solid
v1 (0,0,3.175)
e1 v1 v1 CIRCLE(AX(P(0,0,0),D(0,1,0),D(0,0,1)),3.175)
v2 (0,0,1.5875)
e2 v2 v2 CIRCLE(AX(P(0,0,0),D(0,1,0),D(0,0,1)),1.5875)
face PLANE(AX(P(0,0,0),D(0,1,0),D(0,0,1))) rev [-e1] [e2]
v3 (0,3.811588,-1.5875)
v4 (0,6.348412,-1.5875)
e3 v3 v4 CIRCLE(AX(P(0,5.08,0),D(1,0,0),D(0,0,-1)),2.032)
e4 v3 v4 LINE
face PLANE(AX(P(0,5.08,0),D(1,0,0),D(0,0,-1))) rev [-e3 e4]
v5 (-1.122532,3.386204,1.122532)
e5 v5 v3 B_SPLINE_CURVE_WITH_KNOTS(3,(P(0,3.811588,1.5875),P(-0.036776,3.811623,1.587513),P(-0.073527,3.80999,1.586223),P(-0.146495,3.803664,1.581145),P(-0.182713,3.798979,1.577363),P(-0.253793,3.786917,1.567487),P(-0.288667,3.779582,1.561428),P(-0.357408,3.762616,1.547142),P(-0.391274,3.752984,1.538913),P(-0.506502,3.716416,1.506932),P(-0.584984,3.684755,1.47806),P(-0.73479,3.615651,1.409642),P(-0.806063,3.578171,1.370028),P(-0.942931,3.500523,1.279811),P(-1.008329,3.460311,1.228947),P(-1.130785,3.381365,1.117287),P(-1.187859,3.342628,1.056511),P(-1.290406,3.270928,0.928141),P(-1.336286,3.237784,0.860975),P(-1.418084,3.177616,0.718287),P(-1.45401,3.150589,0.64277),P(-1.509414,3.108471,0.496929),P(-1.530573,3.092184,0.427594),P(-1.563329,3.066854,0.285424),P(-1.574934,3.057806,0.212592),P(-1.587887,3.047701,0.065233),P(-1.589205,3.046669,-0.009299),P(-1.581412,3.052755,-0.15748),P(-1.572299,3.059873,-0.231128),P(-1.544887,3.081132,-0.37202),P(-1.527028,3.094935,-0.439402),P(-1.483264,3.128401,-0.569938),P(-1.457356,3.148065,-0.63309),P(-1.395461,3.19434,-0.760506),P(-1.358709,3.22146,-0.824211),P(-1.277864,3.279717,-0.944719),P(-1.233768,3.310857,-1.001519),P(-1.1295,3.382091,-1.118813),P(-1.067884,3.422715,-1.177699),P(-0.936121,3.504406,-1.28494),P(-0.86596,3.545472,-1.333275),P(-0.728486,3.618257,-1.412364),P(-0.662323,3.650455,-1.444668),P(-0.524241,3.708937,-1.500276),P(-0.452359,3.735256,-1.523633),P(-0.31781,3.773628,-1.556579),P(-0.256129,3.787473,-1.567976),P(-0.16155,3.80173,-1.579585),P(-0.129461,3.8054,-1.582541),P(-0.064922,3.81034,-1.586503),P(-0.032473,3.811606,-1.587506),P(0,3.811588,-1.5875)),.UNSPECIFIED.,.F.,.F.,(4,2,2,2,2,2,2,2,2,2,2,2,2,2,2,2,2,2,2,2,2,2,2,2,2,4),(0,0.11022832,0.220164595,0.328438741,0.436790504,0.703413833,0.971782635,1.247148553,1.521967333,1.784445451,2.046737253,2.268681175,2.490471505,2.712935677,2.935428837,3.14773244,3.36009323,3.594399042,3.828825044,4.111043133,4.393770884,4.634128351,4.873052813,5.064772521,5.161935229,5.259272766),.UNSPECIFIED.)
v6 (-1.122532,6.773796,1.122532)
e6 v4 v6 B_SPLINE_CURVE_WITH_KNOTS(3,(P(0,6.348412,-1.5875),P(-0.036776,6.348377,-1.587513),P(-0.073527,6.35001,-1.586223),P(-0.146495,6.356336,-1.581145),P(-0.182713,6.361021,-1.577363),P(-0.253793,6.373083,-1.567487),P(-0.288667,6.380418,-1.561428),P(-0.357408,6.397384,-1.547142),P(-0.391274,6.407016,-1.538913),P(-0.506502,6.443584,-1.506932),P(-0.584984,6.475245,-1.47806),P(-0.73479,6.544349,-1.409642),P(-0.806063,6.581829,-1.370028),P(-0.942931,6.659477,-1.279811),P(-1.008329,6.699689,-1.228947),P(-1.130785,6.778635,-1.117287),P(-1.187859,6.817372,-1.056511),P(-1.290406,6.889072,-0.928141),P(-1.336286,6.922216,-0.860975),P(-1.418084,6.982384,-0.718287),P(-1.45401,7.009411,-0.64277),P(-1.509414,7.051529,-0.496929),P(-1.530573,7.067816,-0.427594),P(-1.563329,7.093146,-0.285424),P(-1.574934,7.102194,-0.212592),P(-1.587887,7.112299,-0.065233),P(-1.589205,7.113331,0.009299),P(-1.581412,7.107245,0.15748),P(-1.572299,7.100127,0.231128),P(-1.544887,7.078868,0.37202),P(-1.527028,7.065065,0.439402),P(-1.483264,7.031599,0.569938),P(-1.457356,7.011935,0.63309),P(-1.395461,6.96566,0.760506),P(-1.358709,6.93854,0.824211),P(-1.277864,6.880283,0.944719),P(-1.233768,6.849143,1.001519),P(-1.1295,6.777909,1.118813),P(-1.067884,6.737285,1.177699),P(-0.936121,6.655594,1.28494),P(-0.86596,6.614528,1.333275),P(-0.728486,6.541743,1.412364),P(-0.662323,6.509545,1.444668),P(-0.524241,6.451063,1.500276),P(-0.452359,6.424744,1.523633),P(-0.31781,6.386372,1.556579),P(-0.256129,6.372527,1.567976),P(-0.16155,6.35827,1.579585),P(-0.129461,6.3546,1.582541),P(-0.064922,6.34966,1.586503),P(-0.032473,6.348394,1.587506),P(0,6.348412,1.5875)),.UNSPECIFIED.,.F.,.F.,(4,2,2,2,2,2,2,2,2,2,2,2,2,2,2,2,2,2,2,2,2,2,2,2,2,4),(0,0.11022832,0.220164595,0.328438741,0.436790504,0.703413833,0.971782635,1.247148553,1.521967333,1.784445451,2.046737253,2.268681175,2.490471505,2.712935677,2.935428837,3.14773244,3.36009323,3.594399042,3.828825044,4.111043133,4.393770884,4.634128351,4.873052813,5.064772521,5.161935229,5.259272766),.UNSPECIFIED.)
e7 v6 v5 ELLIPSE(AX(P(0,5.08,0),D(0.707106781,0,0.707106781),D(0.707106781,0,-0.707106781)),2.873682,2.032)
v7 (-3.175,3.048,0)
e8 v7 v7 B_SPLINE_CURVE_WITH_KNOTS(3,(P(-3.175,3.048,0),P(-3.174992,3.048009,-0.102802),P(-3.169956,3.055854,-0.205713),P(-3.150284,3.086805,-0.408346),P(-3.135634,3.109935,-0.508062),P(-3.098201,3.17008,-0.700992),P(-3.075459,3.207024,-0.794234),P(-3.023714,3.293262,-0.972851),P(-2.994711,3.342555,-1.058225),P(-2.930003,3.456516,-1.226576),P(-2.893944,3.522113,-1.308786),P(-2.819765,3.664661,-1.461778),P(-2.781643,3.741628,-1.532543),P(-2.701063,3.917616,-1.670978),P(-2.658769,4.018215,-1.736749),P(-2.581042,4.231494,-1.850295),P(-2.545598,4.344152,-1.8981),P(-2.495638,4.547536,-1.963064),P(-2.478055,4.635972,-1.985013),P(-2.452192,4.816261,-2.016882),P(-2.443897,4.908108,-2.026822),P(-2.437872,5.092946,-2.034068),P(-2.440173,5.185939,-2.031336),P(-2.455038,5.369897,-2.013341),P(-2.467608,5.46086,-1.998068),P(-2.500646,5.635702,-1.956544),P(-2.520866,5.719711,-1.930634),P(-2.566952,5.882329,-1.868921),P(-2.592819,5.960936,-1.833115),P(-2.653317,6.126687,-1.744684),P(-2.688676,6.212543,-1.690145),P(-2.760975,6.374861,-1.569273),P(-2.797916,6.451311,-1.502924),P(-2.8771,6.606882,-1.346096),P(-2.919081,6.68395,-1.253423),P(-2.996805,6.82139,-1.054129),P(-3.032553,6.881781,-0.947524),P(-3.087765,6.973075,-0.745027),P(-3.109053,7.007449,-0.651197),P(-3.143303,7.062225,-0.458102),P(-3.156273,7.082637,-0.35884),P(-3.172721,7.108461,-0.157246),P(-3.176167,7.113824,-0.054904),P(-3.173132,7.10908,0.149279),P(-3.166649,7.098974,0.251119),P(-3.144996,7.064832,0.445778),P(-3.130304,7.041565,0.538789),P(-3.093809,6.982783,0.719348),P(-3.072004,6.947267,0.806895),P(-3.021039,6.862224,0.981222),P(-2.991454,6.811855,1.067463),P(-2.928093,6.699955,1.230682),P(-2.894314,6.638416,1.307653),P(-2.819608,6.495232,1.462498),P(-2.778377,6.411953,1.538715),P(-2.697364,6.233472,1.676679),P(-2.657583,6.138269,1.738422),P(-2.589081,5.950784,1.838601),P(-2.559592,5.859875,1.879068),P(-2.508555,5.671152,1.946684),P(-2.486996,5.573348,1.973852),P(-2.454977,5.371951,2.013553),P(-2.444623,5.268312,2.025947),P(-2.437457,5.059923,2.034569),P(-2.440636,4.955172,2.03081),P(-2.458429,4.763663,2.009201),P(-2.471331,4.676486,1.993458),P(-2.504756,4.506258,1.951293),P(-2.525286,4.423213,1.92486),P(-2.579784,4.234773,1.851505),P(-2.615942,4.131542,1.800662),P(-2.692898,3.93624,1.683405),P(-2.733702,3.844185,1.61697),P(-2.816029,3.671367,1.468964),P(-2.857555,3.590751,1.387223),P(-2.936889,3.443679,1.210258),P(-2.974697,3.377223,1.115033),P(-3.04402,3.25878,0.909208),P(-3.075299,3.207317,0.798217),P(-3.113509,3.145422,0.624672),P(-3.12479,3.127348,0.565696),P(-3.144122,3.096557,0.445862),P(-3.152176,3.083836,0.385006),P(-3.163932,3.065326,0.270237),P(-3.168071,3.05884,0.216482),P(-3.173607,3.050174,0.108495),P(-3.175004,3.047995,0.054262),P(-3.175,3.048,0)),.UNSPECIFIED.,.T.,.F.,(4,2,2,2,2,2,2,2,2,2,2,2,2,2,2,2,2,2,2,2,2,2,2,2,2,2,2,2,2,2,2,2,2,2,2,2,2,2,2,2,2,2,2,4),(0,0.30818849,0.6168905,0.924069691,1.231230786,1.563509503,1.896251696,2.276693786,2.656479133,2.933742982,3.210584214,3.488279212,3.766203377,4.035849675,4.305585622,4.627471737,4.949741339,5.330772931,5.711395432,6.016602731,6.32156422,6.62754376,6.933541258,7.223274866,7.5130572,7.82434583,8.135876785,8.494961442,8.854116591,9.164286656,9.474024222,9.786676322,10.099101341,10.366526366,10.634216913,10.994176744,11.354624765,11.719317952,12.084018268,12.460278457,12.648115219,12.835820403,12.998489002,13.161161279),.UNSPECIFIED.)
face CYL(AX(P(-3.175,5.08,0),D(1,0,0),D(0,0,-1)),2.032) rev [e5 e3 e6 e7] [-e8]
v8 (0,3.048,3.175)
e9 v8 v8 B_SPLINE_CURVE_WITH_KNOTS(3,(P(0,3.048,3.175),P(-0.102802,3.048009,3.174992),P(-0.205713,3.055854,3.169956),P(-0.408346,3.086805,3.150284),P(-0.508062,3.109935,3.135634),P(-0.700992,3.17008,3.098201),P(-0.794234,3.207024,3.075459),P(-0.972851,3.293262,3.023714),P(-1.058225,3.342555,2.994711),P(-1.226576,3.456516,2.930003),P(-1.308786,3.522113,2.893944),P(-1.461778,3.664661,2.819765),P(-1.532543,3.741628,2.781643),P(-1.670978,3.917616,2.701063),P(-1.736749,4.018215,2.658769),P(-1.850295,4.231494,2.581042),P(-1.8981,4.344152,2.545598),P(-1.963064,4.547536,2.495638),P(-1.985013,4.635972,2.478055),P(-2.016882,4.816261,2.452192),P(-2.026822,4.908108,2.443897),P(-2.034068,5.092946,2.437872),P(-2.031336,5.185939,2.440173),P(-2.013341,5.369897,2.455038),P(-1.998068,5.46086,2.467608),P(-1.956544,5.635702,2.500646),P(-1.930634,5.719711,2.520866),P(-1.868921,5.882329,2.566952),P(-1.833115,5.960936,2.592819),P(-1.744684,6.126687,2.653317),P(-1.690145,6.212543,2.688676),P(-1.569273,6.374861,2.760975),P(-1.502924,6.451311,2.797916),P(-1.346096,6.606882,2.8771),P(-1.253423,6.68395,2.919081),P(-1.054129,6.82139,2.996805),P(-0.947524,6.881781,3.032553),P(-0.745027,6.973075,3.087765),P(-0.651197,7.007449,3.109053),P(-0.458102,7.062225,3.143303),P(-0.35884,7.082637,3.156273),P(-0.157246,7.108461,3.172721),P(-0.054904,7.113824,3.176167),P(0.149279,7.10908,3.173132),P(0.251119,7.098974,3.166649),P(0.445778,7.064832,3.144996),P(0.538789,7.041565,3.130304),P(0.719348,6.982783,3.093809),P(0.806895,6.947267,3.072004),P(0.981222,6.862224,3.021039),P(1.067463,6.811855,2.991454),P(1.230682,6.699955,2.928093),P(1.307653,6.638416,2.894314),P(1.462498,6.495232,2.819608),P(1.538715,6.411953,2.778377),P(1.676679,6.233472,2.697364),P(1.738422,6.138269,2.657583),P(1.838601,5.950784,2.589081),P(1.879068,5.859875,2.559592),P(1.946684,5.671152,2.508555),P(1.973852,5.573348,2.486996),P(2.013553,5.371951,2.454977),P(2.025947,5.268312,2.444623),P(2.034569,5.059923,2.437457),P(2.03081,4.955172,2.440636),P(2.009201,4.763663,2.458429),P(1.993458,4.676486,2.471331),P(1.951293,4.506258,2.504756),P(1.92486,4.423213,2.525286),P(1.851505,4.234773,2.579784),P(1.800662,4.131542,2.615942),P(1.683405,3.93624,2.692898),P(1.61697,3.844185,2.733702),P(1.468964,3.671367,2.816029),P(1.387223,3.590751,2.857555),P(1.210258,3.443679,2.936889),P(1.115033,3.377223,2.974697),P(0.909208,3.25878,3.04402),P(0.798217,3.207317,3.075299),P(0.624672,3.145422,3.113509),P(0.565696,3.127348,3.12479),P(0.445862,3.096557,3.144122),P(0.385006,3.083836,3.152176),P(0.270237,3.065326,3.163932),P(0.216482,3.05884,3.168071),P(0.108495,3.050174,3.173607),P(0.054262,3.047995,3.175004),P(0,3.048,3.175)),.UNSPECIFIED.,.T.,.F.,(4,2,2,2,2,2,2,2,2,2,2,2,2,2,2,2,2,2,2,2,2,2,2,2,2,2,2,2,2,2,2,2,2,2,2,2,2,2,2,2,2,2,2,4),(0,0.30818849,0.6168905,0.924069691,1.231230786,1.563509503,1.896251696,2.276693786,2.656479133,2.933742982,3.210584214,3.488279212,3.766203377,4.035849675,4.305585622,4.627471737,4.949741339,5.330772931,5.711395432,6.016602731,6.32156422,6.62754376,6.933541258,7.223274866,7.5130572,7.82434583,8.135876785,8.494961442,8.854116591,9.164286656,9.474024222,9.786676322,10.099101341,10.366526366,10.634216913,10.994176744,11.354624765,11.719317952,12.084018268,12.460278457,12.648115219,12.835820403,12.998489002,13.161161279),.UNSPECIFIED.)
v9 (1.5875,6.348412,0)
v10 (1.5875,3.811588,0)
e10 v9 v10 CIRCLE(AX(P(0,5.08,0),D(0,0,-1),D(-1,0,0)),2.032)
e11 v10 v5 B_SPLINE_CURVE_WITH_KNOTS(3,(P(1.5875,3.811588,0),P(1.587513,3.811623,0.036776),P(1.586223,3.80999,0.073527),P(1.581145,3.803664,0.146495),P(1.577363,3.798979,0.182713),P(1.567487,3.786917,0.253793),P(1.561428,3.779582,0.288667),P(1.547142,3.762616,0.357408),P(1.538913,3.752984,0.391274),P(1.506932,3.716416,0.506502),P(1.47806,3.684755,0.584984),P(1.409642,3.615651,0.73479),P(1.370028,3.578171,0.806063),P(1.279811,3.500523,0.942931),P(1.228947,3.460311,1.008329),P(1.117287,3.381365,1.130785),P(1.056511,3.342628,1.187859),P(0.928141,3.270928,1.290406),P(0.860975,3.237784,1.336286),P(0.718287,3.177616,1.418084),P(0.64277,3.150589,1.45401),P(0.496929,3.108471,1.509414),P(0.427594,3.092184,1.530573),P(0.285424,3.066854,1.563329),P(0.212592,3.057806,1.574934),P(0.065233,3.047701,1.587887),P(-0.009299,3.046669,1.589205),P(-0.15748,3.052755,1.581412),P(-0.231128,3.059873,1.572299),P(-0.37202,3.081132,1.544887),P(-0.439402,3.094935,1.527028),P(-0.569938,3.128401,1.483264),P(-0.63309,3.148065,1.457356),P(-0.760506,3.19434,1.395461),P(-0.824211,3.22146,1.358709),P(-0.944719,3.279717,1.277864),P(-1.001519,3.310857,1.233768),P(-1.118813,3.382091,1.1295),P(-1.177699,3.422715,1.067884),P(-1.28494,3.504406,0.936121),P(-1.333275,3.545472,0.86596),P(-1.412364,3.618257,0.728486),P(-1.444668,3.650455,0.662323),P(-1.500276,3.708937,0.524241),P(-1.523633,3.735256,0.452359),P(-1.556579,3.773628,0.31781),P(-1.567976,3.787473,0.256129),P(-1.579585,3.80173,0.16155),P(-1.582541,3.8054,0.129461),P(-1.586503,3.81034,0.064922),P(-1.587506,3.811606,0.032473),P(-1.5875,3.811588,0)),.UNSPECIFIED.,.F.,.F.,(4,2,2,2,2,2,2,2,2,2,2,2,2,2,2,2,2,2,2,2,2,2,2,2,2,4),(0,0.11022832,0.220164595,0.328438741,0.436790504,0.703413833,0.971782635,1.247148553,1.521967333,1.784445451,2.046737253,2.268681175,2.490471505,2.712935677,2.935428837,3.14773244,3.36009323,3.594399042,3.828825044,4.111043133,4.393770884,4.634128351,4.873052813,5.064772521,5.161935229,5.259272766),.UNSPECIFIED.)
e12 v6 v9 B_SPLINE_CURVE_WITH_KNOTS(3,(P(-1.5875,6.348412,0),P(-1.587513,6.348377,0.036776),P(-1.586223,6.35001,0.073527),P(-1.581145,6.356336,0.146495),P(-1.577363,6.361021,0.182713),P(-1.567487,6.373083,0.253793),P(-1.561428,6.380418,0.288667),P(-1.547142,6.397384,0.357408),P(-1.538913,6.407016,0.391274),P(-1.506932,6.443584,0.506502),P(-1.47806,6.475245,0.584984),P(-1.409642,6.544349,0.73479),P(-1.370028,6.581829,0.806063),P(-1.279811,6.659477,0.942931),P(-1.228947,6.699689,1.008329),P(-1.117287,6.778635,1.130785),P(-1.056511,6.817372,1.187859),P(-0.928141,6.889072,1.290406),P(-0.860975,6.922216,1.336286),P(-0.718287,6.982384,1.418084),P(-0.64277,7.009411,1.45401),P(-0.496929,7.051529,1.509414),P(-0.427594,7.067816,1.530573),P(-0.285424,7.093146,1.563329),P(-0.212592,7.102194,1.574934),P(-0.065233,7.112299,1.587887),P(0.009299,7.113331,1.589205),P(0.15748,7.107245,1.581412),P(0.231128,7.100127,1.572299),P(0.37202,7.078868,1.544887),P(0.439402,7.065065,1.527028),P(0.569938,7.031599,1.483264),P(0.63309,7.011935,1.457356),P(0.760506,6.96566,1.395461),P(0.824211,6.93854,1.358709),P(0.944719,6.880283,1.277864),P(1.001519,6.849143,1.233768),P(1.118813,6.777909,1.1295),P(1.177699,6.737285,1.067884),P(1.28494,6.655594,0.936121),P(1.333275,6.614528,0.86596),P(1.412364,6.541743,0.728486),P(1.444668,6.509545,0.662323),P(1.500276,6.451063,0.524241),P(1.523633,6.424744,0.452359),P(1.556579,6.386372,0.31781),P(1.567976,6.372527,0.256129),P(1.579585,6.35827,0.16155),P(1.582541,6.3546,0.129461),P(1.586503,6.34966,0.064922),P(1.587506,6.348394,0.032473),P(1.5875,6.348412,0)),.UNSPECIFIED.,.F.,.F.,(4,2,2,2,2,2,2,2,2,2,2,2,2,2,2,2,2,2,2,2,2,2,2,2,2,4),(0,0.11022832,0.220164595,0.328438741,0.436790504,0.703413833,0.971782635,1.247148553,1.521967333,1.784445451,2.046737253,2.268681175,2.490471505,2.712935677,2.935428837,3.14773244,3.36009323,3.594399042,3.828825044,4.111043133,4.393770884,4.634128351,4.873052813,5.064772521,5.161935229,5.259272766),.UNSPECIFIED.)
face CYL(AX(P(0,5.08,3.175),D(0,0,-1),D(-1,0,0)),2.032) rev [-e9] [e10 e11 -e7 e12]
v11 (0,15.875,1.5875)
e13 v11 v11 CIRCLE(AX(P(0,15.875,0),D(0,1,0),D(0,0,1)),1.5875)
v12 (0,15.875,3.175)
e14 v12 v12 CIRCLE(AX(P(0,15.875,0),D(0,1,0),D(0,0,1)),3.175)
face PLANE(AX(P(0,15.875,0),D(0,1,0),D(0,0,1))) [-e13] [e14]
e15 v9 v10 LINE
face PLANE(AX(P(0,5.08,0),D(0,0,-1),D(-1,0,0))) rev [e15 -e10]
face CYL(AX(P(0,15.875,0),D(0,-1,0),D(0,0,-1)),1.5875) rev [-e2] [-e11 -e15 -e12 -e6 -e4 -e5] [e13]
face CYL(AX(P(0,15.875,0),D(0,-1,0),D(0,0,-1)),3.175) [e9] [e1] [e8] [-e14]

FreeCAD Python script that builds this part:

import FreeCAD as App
import Part
import Sketcher
from FreeCAD import Vector
Q = App.Units.Quantity

doc = App.newDocument("Part")
params = doc.addObject("Spreadsheet::Sheet", "Params")
for row, (alias, value) in enumerate([
    ("sketch1_diameter", "0.25 in"),
    ("sketch1_diameter2", "0.125 in"),
    ("pad1_length", "0.625 in"),
    ("sketch2_diameter", "0.16 in"),
], start=1):
    params.set(f"A{row}", alias)
    params.set(f"B{row}", "=" + value)
    params.setAlias(f"B{row}", alias)

body = doc.addObject("PartDesign::Body", "Body")

# Sketch on XZ plane
sketch1 = body.newObject("Sketcher::SketchObject", "Sketch")
sketch1.AttachmentSupport = (doc.getObject("XZ_Plane"), [""])
sketch1.MapMode = "FlatFace"
sketch1.addGeometry(Part.Circle(Vector(0, 0, 0), Vector(0, 0, 1), 3.175), False)
sketch1.addGeometry(Part.Circle(Vector(0, 0, 0), Vector(0, 0, 1), 1.5875), False)
sketch1.addConstraint(Sketcher.Constraint("Coincident", 0, 3, -1, 1))
sketch1.addConstraint(Sketcher.Constraint("Coincident", 1, 3, -1, 1))
sketch1.addConstraint(Sketcher.Constraint("Diameter", 0, Q("0.25 in")))
sketch1.addConstraint(Sketcher.Constraint("Diameter", 1, Q("0.125 in")))
sketch1.setExpression("Constraints[2]", "Params.sketch1_diameter")
sketch1.setExpression("Constraints[3]", "Params.sketch1_diameter2")
pad1 = body.newObject("PartDesign::Pad", "Pad")
pad1.Profile = sketch1
pad1.setExpression("Length", "Params.pad1_length")
pad1.Reversed = True

# Sketch on YZ plane
sketch2 = body.newObject("Sketcher::SketchObject", "Sketch001")
sketch2.AttachmentSupport = (doc.getObject("YZ_Plane"), [""])
sketch2.MapMode = "FlatFace"
sketch2.addGeometry(Part.Circle(Vector(5.08, 0, 0), Vector(0, 0, 1), 2.032), False)
sketch2.addConstraint(Sketcher.Constraint("PointOnObject", 0, 3, -1))
sketch2.addConstraint(Sketcher.Constraint("Diameter", 0, Q("0.16 in")))
sketch2.addConstraint(Sketcher.Constraint("DistanceX", -1, 1, 0, 3, Q("0.2 in")))
sketch2.setExpression("Constraints[1]", "Params.sketch2_diameter")
pocket1 = body.newObject("PartDesign::Pocket", "Pocket")
pocket1.Profile = sketch2
pocket1.Type = "ThroughAll"
doc.recompute()

polarpattern = body.newObject("PartDesign::PolarPattern", "PolarPattern")
polarpattern.Originals = [pocket1]
polarpattern.Axis = (doc.getObject("Y_Axis"), [""])
polarpattern.Angle = 90
polarpattern.Occurrences = 2
body.Tip = polarpattern

doc.recompute()
